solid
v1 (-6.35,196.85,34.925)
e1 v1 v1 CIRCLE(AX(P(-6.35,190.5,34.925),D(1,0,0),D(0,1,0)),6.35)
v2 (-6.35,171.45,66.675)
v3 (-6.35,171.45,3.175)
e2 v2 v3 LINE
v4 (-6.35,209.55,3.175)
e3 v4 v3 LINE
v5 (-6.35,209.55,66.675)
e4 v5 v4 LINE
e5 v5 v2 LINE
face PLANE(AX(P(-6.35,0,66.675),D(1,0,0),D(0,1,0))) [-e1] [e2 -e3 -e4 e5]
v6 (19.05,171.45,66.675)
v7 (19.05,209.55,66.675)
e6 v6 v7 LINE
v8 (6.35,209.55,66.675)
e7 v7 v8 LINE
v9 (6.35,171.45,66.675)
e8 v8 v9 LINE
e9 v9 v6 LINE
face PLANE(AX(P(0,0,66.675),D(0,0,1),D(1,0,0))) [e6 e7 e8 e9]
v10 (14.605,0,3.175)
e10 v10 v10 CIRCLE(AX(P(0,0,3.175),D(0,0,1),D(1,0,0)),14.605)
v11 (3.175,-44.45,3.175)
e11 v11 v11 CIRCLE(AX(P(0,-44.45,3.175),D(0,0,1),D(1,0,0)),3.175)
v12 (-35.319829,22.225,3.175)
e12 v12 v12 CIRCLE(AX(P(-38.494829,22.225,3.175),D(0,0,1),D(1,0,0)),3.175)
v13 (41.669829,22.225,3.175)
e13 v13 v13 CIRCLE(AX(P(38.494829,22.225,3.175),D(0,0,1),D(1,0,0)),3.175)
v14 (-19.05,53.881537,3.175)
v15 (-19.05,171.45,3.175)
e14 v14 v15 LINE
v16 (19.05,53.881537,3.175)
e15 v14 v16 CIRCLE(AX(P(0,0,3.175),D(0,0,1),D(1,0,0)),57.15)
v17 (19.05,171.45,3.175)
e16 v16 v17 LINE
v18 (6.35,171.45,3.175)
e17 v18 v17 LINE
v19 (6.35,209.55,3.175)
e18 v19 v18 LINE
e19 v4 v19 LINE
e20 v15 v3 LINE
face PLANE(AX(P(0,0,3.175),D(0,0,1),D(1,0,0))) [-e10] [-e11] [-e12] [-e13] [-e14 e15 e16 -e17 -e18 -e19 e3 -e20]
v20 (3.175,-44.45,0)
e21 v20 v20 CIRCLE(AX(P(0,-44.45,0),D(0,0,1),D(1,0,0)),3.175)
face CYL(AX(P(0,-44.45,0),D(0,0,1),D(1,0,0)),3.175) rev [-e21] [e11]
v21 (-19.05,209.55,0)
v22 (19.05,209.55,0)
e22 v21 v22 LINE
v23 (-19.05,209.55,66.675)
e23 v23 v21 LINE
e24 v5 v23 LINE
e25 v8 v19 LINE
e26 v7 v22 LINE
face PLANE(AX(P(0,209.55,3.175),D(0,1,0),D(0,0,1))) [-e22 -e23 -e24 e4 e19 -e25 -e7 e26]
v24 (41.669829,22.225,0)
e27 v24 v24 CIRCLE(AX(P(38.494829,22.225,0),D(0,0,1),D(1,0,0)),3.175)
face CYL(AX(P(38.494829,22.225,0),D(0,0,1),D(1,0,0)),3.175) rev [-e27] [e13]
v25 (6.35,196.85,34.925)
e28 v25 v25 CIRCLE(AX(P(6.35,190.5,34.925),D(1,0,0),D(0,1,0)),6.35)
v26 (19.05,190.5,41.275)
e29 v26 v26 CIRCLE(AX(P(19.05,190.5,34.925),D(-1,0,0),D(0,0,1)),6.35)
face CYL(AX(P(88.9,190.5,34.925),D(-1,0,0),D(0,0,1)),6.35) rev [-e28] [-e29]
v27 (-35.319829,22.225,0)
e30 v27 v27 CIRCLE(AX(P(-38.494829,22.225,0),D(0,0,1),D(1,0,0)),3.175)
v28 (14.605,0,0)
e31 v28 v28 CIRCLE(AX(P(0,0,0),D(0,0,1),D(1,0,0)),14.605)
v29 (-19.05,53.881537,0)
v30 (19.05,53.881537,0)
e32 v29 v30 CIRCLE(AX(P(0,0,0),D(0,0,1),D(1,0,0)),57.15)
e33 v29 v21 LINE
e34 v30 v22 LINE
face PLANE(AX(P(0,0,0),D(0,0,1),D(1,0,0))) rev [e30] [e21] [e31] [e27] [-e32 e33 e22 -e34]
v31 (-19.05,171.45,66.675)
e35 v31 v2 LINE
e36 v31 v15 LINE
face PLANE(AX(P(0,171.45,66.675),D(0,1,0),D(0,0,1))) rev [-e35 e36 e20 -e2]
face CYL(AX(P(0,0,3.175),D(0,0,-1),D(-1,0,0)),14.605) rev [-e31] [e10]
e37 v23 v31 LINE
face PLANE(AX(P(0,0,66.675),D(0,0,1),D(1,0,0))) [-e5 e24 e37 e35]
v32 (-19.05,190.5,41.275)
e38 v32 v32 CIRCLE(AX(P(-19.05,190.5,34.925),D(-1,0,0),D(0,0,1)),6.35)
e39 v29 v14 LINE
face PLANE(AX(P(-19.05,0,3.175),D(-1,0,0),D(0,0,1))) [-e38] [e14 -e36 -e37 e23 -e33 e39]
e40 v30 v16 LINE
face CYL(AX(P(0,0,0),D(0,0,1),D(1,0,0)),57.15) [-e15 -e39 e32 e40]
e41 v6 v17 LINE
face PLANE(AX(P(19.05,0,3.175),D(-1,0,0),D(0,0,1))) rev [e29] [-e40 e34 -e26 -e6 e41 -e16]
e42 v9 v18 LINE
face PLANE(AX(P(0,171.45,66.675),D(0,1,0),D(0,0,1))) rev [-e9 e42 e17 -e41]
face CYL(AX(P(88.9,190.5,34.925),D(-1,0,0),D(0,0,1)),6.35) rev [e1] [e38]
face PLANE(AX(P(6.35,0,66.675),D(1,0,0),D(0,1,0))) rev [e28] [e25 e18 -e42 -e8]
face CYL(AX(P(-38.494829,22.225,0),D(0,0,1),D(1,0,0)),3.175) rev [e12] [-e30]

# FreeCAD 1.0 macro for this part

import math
import FreeCAD as App
import Part
import Sketcher

V = App.Vector
Q = App.Units.Quantity

doc = App.newDocument("Part")
body = doc.addObject("PartDesign::Body", "Body")

sketch1 = body.newObject("Sketcher::SketchObject", "Sketch")
sketch1.AttachmentSupport = (doc.getObject("XY_Plane"), [""])
sketch1.MapMode = "FlatFace"
sketch1.addGeometry([
    Part.LineSegment(V(-19.05, 209.55, 0), V(-19.05, 88.9, 0)),
    Part.LineSegment(V(-19.05, 88.9, 0), V(-88.9, 88.9, 0)),
    Part.LineSegment(V(-88.9, 88.9, 0), V(-88.9, -88.9, 0)),
    Part.LineSegment(V(-88.9, -88.9, 0), V(88.9, -88.9, 0)),
    Part.LineSegment(V(88.9, -88.9, 0), V(88.9, 88.9, 0)),
    Part.LineSegment(V(88.9, 88.9, 0), V(19.05, 88.9, 0)),
    Part.LineSegment(V(19.05, 88.9, 0), V(19.05, 209.55, 0)),
    Part.LineSegment(V(19.05, 209.55, 0), V(-19.05, 209.55, 0)),
    Part.Circle(V(0, 0, 0), V(0, 0, 1), 14.605),
], False)
sketch1.addConstraint([
    Sketcher.Constraint("Coincident", 0, 2, 1, 1),
    Sketcher.Constraint("Coincident", 1, 2, 2, 1),
    Sketcher.Constraint("Coincident", 2, 2, 3, 1),
    Sketcher.Constraint("Coincident", 3, 2, 4, 1),
    Sketcher.Constraint("Coincident", 4, 2, 5, 1),
    Sketcher.Constraint("Coincident", 5, 2, 6, 1),
    Sketcher.Constraint("Coincident", 6, 2, 7, 1),
    Sketcher.Constraint("Coincident", 7, 2, 0, 1),
    Sketcher.Constraint("Vertical", 0),
    Sketcher.Constraint("Horizontal", 1),
    Sketcher.Constraint("Vertical", 2),
    Sketcher.Constraint("Horizontal", 3),
    Sketcher.Constraint("Vertical", 4),
    Sketcher.Constraint("Horizontal", 5),
    Sketcher.Constraint("Vertical", 6),
    Sketcher.Constraint("Horizontal", 7),
    Sketcher.Constraint("Coincident", 8, 3, -1, 1),
    Sketcher.Constraint("Symmetric", 1, 2, 3, 2, -1, 1),
    Sketcher.Constraint("Symmetric", 0, 2, 5, 2, -2),
    Sketcher.Constraint("Equal", 3, 2),
    Sketcher.Constraint("Diameter", 8, Q("1.15 in")),
    Sketcher.Constraint("DistanceX", 3, 1, 3, 2, Q("7 in")),
    Sketcher.Constraint("DistanceX", 7, 2, 7, 1, Q("1.5 in")),
    Sketcher.Constraint("DistanceY", 0, 2, 0, 1, Q("4.75 in")),
])
pad1 = body.newObject("PartDesign::Pad", "Pad")
pad1.Profile = sketch1
pad1.Length = Q("0.125 in")

sketch2 = body.newObject("Sketcher::SketchObject", "Sketch001")
sketch2.AttachmentSupport = (doc.getObject("XY_Plane"), [""])
sketch2.MapMode = "FlatFace"
sketch2.AttachmentOffset = App.Placement(V(0, 0, 0.125 * 25.4), App.Rotation())
sketch2.addGeometry([
    Part.Circle(V(-38.494829, 22.225, 0), V(0, 0, 1), 3.175),
    Part.Circle(V(38.494829, 22.225, 0), V(0, 0, 1), 3.175),
    Part.Circle(V(0, -44.45, 0), V(0, 0, 1), 3.175),
], False)
sketch2.addConstraint([
    Sketcher.Constraint("Equal", 0, 1),
    Sketcher.Constraint("Equal", 1, 2),
    Sketcher.Constraint("Symmetric", 0, 3, 1, 3, -2),
    Sketcher.Constraint("PointOnObject", 2, 3, -2),
    Sketcher.Constraint("Diameter", 0, Q("0.25 in")),
    Sketcher.Constraint("DistanceY", 2, 3, -1, 1, Q("1.75 in")),
    Sketcher.Constraint("DistanceY", -1, 1, 0, 3, Q("0.875 in")),
    Sketcher.Constraint("DistanceX", 0, 3, -1, 1, Q("38.494829 mm")),
])
pocket1 = body.newObject("PartDesign::Pocket", "Pocket")
pocket1.Profile = sketch2
pocket1.Type = "ThroughAll"

sketch3 = body.newObject("Sketcher::SketchObject", "Sketch002")
sketch3.AttachmentSupport = (doc.getObject("XY_Plane"), [""])
sketch3.MapMode = "FlatFace"
sketch3.AttachmentOffset = App.Placement(V(0, 0, 0.125 * 25.4), App.Rotation())
sketch3.addGeometry([
    Part.LineSegment(V(-19.05, 209.55, 0), V(-19.05, 171.45, 0)),
    Part.LineSegment(V(-19.05, 171.45, 0), V(-6.35, 171.45, 0)),
    Part.LineSegment(V(-6.35, 171.45, 0), V(-6.35, 209.55, 0)),
    Part.LineSegment(V(-6.35, 209.55, 0), V(-19.05, 209.55, 0)),
    Part.LineSegment(V(6.35, 209.55, 0), V(6.35, 171.45, 0)),
    Part.LineSegment(V(6.35, 171.45, 0), V(19.05, 171.45, 0)),
    Part.LineSegment(V(19.05, 171.45, 0), V(19.05, 209.55, 0)),
    Part.LineSegment(V(19.05, 209.55, 0), V(6.35, 209.55, 0)),
], False)
sketch3.addConstraint([
    Sketcher.Constraint("Coincident", 0, 2, 1, 1),
    Sketcher.Constraint("Coincident", 1, 2, 2, 1),
    Sketcher.Constraint("Coincident", 2, 2, 3, 1),
    Sketcher.Constraint("Coincident", 3, 2, 0, 1),
    Sketcher.Constraint("Coincident", 4, 2, 5, 1),
    Sketcher.Constraint("Coincident", 5, 2, 6, 1),
    Sketcher.Constraint("Coincident", 6, 2, 7, 1),
    Sketcher.Constraint("Coincident", 7, 2, 4, 1),
    Sketcher.Constraint("Vertical", 0),
    Sketcher.Constraint("Horizontal", 1),
    Sketcher.Constraint("Vertical", 2),
    Sketcher.Constraint("Horizontal", 3),
    Sketcher.Constraint("Vertical", 4),
    Sketcher.Constraint("Horizontal", 5),
    Sketcher.Constraint("Vertical", 6),
    Sketcher.Constraint("Horizontal", 7),
    Sketcher.Constraint("Symmetric", 1, 2, 4, 2, -2),
    Sketcher.Constraint("Symmetric", 3, 2, 6, 2, -2),
    Sketcher.Constraint("DistanceX", 1, 1, 1, 2, Q("0.5 in")),
    Sketcher.Constraint("DistanceY", 0, 2, 0, 1, Q("1.5 in")),
    Sketcher.Constraint("DistanceX", 0, 2, 4, 2, Q("1 in")),
    Sketcher.Constraint("DistanceY", -1, 1, 0, 2, Q("6.75 in")),
])
pad2 = body.newObject("PartDesign::Pad", "Pad001")
pad2.Profile = sketch3
pad2.Length = Q("2.5 in")

sketch4 = body.newObject("Sketcher::SketchObject", "Sketch003")
sketch4.AttachmentSupport = (doc.getObject("YZ_Plane"), [""])
sketch4.MapMode = "FlatFace"
sketch4.AttachmentOffset = App.Placement(V(0, 0, -0.75 * 25.4), App.Rotation())
sketch4.addGeometry(Part.Circle(V(190.5, 34.925, 0), V(0, 0, 1), 6.35), False)
sketch4.addConstraint([
    Sketcher.Constraint("Diameter", 0, Q("0.5 in")),
    Sketcher.Constraint("DistanceX", -1, 1, 0, 3, Q("7.5 in")),
    Sketcher.Constraint("DistanceY", -1, 1, 0, 3, Q("1.375 in")),
])
pocket2 = body.newObject("PartDesign::Pocket", "Pocket001")
pocket2.Profile = sketch4
pocket2.Type = "ThroughAll"
pocket2.Reversed = True

sketch5 = body.newObject("Sketcher::SketchObject", "Sketch004")
sketch5.AttachmentSupport = (doc.getObject("XY_Plane"), [""])
sketch5.MapMode = "FlatFace"
sketch5.AttachmentOffset = App.Placement(V(0, 0, 0.125 * 25.4), App.Rotation())
sketch5.addGeometry([
    Part.LineSegment(V(-19.05, 53.881537, 0), V(-19.05, 88.9, 0)),
    Part.LineSegment(V(-19.05, 88.9, 0), V(-88.9, 88.9, 0)),
    Part.LineSegment(V(-88.9, 88.9, 0), V(-88.9, -88.9, 0)),
    Part.LineSegment(V(-88.9, -88.9, 0), V(88.9, -88.9, 0)),
    Part.LineSegment(V(88.9, -88.9, 0), V(88.9, 88.9, 0)),
    Part.LineSegment(V(88.9, 88.9, 0), V(19.05, 88.9, 0)),
    Part.LineSegment(V(19.05, 88.9, 0), V(19.05, 53.881537, 0)),
    Part.ArcOfCircle(Part.Circle(V(0, 0, 0), V(0, 0, 1), 57.15), math.radians(0), math.radians(70.528779)),
    Part.ArcOfCircle(Part.Circle(V(0, 0, 0), V(0, 0, 1), 57.15), math.radians(109.471221), math.radians(360)),
], False)
sketch5.addConstraint([
    Sketcher.Constraint("Coincident", 0, 2, 1, 1),
    Sketcher.Constraint("Coincident", 1, 2, 2, 1),
    Sketcher.Constraint("Coincident", 2, 2, 3, 1),
    Sketcher.Constraint("Coincident", 3, 2, 4, 1),
    Sketcher.Constraint("Coincident", 4, 2, 5, 1),
    Sketcher.Constraint("Coincident", 5, 2, 6, 1),
    Sketcher.Constraint("Coincident", 6, 2, 7, 2),
    Sketcher.Constraint("Tangent", 7, 1, 8, 2),
    Sketcher.Constraint("Coincident", 8, 1, 0, 1),
    Sketcher.Constraint("Vertical", 0),
    Sketcher.Constraint("Horizontal", 1),
    Sketcher.Constraint("Vertical", 2),
    Sketcher.Constraint("Horizontal", 3),
    Sketcher.Constraint("Vertical", 4),
    Sketcher.Constraint("Horizontal", 5),
    Sketcher.Constraint("Vertical", 6),
    Sketcher.Constraint("Coincident", 7, 3, -1, 1),
    Sketcher.Constraint("Equal", 7, 8),
    Sketcher.Constraint("Symmetric", 1, 2, 3, 2, -1, 1),
    Sketcher.Constraint("Symmetric", 0, 2, 5, 2, -2),
    Sketcher.Constraint("PointOnObject", 7, 1, -1),
    Sketcher.Constraint("Equal", 3, 2),
    Sketcher.Constraint("DistanceX", 3, 1, 3, 2, Q("7 in")),
    Sketcher.Constraint("Radius", 7, Q("2.25 in")),
    Sketcher.Constraint("DistanceX", 1, 2, 1, 1, Q("2.75 in")),
])
pocket3 = body.newObject("PartDesign::Pocket", "Pocket002")
pocket3.Profile = sketch5
pocket3.Type = "ThroughAll"

doc.recompute()
